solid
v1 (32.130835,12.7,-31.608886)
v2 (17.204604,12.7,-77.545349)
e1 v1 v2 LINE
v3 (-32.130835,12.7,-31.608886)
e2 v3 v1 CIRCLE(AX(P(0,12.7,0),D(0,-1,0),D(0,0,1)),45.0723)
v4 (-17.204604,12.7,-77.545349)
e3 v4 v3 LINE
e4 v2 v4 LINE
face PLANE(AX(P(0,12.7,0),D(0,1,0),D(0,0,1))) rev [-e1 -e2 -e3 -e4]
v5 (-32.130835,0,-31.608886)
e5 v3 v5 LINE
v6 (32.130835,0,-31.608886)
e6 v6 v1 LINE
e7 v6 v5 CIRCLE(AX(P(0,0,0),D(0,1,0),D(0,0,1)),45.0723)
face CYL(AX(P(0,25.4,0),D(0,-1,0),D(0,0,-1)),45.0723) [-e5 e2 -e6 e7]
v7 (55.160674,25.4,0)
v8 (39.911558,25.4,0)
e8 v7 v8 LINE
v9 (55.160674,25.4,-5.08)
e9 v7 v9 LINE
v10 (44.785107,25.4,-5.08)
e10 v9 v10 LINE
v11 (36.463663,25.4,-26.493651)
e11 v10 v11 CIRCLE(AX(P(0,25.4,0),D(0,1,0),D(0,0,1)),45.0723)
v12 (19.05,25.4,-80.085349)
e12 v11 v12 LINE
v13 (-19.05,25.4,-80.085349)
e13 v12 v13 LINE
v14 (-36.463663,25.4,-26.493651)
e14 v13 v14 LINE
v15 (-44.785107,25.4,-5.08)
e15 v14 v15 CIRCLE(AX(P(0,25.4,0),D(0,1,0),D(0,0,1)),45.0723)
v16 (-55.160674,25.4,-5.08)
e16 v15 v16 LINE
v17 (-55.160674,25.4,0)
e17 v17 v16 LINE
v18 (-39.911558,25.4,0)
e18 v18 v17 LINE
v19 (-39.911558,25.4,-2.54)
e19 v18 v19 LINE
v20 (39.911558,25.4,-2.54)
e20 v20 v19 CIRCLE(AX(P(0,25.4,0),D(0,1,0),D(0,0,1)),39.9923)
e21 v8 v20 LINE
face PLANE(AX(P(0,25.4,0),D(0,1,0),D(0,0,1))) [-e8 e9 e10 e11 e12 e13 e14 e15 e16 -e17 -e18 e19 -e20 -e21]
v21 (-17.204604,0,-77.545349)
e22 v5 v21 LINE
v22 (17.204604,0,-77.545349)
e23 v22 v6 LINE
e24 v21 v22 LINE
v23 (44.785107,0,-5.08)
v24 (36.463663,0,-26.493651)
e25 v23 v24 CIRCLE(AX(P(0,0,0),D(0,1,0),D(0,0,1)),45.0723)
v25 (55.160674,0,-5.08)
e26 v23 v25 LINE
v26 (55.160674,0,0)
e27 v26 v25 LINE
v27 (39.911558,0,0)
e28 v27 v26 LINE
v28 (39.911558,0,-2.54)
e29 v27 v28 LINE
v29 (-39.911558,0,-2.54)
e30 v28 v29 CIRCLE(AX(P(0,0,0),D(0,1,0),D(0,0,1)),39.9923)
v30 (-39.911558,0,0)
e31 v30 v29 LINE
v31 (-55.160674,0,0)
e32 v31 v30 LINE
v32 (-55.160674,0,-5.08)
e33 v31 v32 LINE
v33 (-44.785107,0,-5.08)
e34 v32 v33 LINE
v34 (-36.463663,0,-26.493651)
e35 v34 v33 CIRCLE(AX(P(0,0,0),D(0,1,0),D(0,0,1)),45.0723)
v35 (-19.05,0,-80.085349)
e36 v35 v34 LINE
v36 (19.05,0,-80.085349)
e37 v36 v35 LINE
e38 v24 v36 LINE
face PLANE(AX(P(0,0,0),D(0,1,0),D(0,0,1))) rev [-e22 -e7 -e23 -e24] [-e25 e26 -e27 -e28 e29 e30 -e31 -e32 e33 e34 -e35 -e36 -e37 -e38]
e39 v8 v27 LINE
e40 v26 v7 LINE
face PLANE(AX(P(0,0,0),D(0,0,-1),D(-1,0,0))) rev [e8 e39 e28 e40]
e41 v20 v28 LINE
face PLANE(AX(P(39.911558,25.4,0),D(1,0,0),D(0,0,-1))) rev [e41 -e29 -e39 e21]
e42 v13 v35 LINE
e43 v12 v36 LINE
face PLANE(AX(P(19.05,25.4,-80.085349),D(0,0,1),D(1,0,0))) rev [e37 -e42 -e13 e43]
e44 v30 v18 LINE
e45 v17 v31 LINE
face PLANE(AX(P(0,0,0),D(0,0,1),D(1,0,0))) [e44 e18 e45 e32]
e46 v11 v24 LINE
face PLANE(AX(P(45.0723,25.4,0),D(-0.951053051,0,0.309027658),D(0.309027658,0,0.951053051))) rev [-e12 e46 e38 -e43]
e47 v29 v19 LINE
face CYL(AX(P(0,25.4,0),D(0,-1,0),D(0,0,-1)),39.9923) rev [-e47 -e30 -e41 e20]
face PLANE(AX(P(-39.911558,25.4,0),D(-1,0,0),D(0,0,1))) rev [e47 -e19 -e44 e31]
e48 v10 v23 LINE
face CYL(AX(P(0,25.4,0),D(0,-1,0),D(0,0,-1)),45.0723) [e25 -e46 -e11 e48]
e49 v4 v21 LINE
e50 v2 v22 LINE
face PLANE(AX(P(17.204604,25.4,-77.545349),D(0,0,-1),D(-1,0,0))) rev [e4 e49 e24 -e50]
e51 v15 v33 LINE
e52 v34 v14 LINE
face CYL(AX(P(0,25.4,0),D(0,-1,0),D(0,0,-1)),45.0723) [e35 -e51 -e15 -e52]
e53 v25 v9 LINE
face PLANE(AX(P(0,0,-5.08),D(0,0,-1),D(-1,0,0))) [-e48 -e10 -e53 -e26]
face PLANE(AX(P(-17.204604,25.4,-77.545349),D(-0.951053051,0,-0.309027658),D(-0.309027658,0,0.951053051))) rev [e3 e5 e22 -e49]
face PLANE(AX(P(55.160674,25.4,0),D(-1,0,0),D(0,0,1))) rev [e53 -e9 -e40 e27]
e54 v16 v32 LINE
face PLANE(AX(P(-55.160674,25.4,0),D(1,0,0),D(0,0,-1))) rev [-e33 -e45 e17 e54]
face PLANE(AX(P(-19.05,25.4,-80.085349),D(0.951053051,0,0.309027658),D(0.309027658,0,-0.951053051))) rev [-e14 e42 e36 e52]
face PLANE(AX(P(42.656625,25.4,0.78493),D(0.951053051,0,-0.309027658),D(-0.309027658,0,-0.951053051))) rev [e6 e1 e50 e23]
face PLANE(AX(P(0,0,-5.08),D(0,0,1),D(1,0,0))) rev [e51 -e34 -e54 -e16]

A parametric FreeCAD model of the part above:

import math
import FreeCAD as App
import Part
import Sketcher

V = App.Vector
Q = App.Units.Quantity


def add_polygon(sketch, points):
    """Adds a closed chain of lines whose ends are joined by coincident constraints."""
    first, n = sketch.GeometryCount, len(points)
    for a, b in zip(points, points[1:] + points[:1]):
        sketch.addGeometry(Part.LineSegment(App.Vector(*a, 0), App.Vector(*b, 0)), False)
    for i in range(n):
        sketch.addConstraint(Sketcher.Constraint("Coincident", first + i, 2, first + (i + 1) % n, 1))

doc = App.newDocument("Part")
body = doc.addObject("PartDesign::Body", "Body")

# Sketch on XZ plane
sketch1 = doc.addObject("Sketcher::SketchObject", "Sketch")
body.addObject(sketch1)
sketch1.AttachmentSupport = (doc.XZ_Plane, [""])
sketch1.MapMode = "FlatFace"
sketch1.addGeometry(Part.Circle(V(0, 0, 0), V(0, 0, 1), 45), False)
sketch1.addGeometry(Part.Circle(V(0, 0, 0), V(0, 0, 1), 40), False)
sketch1.addConstraint(Sketcher.Constraint("Coincident", 0, 3, -1, 1))
sketch1.addConstraint(Sketcher.Constraint("Coincident", 1, 3, -1, 1))
sketch1.addConstraint(Sketcher.Constraint("Diameter", 0, Q("3.549 in")))
sketch1.addConstraint(Sketcher.Constraint("Diameter", 1, Q("3.149 in")))
pad1 = doc.addObject("PartDesign::Pad", "Pad")
body.addObject(pad1)
pad1.Profile = sketch1
pad1.Length = Q("1 in")
pad1.Reversed = True

# Sketch on XZ plane
sketch2 = doc.addObject("Sketcher::SketchObject", "Sketch001")
body.addObject(sketch2)
sketch2.AttachmentSupport = (doc.XZ_Plane, [""])
sketch2.MapMode = "FlatFace"
sketch2.AttachmentOffset = App.Placement(V(0, 0, -0.5 * 25.4), App.Rotation())
add_polygon(sketch2, [(45.1, 0), (19.1, -80.1), (-19.1, -80.1), (-45.1, 0), (-42.7, 0.8), (-17.2, -77.5), (17.2, -77.5), (42.7, 0.8)])  # lines 0-7
sketch2.addConstraint(Sketcher.Constraint("Horizontal", 1))
sketch2.addConstraint(Sketcher.Constraint("Horizontal", 5))
sketch2.addConstraint(Sketcher.Constraint("Symmetric", 2, 2, 7, 2, -1, 1))
sketch2.addConstraint(Sketcher.Constraint("Symmetric", 3, 2, 6, 2, -2))
sketch2.addConstraint(Sketcher.Constraint("PointOnObject", 2, 2, -1))
sketch2.addConstraint(Sketcher.Constraint("Perpendicular", 2, 3))
sketch2.addConstraint(Sketcher.Constraint("Perpendicular", 3, 4))
sketch2.addConstraint(Sketcher.Constraint("Parallel", 0, 6))
sketch2.addConstraint(Sketcher.Constraint("Perpendicular", 6, 7))
sketch2.addConstraint(Sketcher.Constraint("DistanceX", 1, 2, 1, 1, Q("1.5 in")))
sketch2.addConstraint(Sketcher.Constraint("Distance", 3, Q("0.1 in")))
sketch2.addConstraint(Sketcher.Constraint("DistanceY", 1, 2, 4, 2, Q("0.1 in")))
sketch2.addConstraint(Sketcher.Constraint("DistanceX", 2, 2, 7, 2, Q("3.549 in")))
sketch2.addConstraint(Sketcher.Constraint("Distance", 4, Q("82.36163 mm")))
pad2 = doc.addObject("PartDesign::Pad", "Pad001")
body.addObject(pad2)
pad2.Profile = sketch2
pad2.Length = Q("1 in")
pad2.Midplane = True

# Sketch on XZ plane
sketch3 = doc.addObject("Sketcher::SketchObject", "Sketch002")
body.addObject(sketch3)
sketch3.AttachmentSupport = (doc.XZ_Plane, [""])
sketch3.MapMode = "FlatFace"
sketch3.AttachmentOffset = App.Placement(V(0, 0, -1 * 25.4), App.Rotation())
sketch3.addGeometry(Part.LineSegment(V(17, -78, 0), V(-17, -78, 0)), False)
sketch3.addGeometry(Part.LineSegment(V(-17, -78, 0), V(-32, -32, 0)), False)
sketch3.addGeometry(Part.ArcOfCircle(Part.Circle(V(0, 0, 0), V(0, 0, 1), 45), math.radians(-135), math.radians(-45)), False)
sketch3.addGeometry(Part.LineSegment(V(32, -32, 0), V(17, -78, 0)), False)
sketch3.addConstraint(Sketcher.Constraint("Coincident", 0, 2, 1, 1))
sketch3.addConstraint(Sketcher.Constraint("Coincident", 1, 2, 2, 1))
sketch3.addConstraint(Sketcher.Constraint("Coincident", 2, 2, 3, 1))
sketch3.addConstraint(Sketcher.Constraint("Coincident", 3, 2, 0, 1))
sketch3.addConstraint(Sketcher.Constraint("Horizontal", 0))
sketch3.addConstraint(Sketcher.Constraint("Coincident", 2, 3, -1, 1))
sketch3.addConstraint(Sketcher.Constraint("Horizontal", 1, 2, 2, 2))
sketch3.addConstraint(Sketcher.Constraint("Equal", 1, 3))
sketch3.addConstraint(Sketcher.Constraint("Radius", 2, Q("1.7745 in")))
sketch3.addConstraint(Sketcher.Constraint("Distance", 1, Q("48.300631 mm")))
sketch3.addConstraint(Sketcher.Constraint("DistanceX", 0, 2, 0, 1, Q("34.409207 mm")))
sketch3.addConstraint(Sketcher.Constraint("DistanceY", 0, 2, -1, 1, Q("77.545349 mm")))
pad3 = doc.addObject("PartDesign::Pad", "Pad002")
body.addObject(pad3)
pad3.Profile = sketch3
pad3.Length = Q("0.5 in")

# Sketch on XY plane
sketch4 = doc.addObject("Sketcher::SketchObject", "Sketch003")
body.addObject(sketch4)
sketch4.AttachmentSupport = (doc.XY_Plane, [""])
sketch4.MapMode = "FlatFace"
add_polygon(sketch4, [(-45, 25), (-45, 0), (45, 0), (45, 25)])  # lines 0-3
sketch4.addConstraint(Sketcher.Constraint("Vertical", 0))
sketch4.addConstraint(Sketcher.Constraint("Horizontal", 1))
sketch4.addConstraint(Sketcher.Constraint("Vertical", 2))
sketch4.addConstraint(Sketcher.Constraint("Horizontal", 3))
sketch4.addConstraint(Sketcher.Constraint("Symmetric", 0, 2, 1, 2, -1, 1))
sketch4.addConstraint(Sketcher.Constraint("DistanceY", 0, 2, 0, 1, Q("1 in")))
sketch4.addConstraint(Sketcher.Constraint("DistanceX", 1, 1, 1, 2, Q("3.549 in")))
pocket1 = doc.addObject("PartDesign::Pocket", "Pocket")
body.addObject(pocket1)
pocket1.Profile = sketch4
pocket1.Type = "TwoLengths"
pocket1.Length = 46.0723
pocket1.Length2 = Q("0.1 in")
pocket1.Reversed = True

# Sketch on XY plane
sketch5 = doc.addObject("Sketcher::SketchObject", "Sketch004")
body.addObject(sketch5)
sketch5.AttachmentSupport = (doc.XY_Plane, [""])
sketch5.MapMode = "FlatFace"
sketch5.AttachmentOffset = App.Placement(V(0, 0, -0.1 * 25.4), App.Rotation())
add_polygon(sketch5, [(-40, 25), (-55, 25), (-55, 0), (-40, 0)])  # lines 0-3
add_polygon(sketch5, [(55, 0), (55, 25), (40, 25), (40, 0)])  # lines 4-7
sketch5.addConstraint(Sketcher.Constraint("Horizontal", 0))
sketch5.addConstraint(Sketcher.Constraint("Vertical", 1))
sketch5.addConstraint(Sketcher.Constraint("Horizontal", 2))
sketch5.addConstraint(Sketcher.Constraint("Vertical", 3))
sketch5.addConstraint(Sketcher.Constraint("Vertical", 4))
sketch5.addConstraint(Sketcher.Constraint("Horizontal", 5))
sketch5.addConstraint(Sketcher.Constraint("Vertical", 6))
sketch5.addConstraint(Sketcher.Constraint("Horizontal", 7))
sketch5.addConstraint(Sketcher.Constraint("Symmetric", 2, 2, 6, 2, -1, 1))
sketch5.addConstraint(Sketcher.Constraint("Symmetric", 0, 2, 4, 2, -2))
sketch5.addConstraint(Sketcher.Constraint("PointOnObject", 1, 2, -1))
sketch5.addConstraint(Sketcher.Constraint("DistanceY", 1, 2, 1, 1, Q("1 in")))
sketch5.addConstraint(Sketcher.Constraint("DistanceX", 0, 2, 0, 1, Q("15.249116 mm")))
sketch5.addConstraint(Sketcher.Constraint("DistanceX", 3, 2, 4, 2, Q("95.072232 mm")))
pad4 = doc.addObject("PartDesign::Pad", "Pad003")
body.addObject(pad4)
pad4.Profile = sketch5
pad4.Length = Q("0.2 in")
pad4.Midplane = True

doc.recompute()
